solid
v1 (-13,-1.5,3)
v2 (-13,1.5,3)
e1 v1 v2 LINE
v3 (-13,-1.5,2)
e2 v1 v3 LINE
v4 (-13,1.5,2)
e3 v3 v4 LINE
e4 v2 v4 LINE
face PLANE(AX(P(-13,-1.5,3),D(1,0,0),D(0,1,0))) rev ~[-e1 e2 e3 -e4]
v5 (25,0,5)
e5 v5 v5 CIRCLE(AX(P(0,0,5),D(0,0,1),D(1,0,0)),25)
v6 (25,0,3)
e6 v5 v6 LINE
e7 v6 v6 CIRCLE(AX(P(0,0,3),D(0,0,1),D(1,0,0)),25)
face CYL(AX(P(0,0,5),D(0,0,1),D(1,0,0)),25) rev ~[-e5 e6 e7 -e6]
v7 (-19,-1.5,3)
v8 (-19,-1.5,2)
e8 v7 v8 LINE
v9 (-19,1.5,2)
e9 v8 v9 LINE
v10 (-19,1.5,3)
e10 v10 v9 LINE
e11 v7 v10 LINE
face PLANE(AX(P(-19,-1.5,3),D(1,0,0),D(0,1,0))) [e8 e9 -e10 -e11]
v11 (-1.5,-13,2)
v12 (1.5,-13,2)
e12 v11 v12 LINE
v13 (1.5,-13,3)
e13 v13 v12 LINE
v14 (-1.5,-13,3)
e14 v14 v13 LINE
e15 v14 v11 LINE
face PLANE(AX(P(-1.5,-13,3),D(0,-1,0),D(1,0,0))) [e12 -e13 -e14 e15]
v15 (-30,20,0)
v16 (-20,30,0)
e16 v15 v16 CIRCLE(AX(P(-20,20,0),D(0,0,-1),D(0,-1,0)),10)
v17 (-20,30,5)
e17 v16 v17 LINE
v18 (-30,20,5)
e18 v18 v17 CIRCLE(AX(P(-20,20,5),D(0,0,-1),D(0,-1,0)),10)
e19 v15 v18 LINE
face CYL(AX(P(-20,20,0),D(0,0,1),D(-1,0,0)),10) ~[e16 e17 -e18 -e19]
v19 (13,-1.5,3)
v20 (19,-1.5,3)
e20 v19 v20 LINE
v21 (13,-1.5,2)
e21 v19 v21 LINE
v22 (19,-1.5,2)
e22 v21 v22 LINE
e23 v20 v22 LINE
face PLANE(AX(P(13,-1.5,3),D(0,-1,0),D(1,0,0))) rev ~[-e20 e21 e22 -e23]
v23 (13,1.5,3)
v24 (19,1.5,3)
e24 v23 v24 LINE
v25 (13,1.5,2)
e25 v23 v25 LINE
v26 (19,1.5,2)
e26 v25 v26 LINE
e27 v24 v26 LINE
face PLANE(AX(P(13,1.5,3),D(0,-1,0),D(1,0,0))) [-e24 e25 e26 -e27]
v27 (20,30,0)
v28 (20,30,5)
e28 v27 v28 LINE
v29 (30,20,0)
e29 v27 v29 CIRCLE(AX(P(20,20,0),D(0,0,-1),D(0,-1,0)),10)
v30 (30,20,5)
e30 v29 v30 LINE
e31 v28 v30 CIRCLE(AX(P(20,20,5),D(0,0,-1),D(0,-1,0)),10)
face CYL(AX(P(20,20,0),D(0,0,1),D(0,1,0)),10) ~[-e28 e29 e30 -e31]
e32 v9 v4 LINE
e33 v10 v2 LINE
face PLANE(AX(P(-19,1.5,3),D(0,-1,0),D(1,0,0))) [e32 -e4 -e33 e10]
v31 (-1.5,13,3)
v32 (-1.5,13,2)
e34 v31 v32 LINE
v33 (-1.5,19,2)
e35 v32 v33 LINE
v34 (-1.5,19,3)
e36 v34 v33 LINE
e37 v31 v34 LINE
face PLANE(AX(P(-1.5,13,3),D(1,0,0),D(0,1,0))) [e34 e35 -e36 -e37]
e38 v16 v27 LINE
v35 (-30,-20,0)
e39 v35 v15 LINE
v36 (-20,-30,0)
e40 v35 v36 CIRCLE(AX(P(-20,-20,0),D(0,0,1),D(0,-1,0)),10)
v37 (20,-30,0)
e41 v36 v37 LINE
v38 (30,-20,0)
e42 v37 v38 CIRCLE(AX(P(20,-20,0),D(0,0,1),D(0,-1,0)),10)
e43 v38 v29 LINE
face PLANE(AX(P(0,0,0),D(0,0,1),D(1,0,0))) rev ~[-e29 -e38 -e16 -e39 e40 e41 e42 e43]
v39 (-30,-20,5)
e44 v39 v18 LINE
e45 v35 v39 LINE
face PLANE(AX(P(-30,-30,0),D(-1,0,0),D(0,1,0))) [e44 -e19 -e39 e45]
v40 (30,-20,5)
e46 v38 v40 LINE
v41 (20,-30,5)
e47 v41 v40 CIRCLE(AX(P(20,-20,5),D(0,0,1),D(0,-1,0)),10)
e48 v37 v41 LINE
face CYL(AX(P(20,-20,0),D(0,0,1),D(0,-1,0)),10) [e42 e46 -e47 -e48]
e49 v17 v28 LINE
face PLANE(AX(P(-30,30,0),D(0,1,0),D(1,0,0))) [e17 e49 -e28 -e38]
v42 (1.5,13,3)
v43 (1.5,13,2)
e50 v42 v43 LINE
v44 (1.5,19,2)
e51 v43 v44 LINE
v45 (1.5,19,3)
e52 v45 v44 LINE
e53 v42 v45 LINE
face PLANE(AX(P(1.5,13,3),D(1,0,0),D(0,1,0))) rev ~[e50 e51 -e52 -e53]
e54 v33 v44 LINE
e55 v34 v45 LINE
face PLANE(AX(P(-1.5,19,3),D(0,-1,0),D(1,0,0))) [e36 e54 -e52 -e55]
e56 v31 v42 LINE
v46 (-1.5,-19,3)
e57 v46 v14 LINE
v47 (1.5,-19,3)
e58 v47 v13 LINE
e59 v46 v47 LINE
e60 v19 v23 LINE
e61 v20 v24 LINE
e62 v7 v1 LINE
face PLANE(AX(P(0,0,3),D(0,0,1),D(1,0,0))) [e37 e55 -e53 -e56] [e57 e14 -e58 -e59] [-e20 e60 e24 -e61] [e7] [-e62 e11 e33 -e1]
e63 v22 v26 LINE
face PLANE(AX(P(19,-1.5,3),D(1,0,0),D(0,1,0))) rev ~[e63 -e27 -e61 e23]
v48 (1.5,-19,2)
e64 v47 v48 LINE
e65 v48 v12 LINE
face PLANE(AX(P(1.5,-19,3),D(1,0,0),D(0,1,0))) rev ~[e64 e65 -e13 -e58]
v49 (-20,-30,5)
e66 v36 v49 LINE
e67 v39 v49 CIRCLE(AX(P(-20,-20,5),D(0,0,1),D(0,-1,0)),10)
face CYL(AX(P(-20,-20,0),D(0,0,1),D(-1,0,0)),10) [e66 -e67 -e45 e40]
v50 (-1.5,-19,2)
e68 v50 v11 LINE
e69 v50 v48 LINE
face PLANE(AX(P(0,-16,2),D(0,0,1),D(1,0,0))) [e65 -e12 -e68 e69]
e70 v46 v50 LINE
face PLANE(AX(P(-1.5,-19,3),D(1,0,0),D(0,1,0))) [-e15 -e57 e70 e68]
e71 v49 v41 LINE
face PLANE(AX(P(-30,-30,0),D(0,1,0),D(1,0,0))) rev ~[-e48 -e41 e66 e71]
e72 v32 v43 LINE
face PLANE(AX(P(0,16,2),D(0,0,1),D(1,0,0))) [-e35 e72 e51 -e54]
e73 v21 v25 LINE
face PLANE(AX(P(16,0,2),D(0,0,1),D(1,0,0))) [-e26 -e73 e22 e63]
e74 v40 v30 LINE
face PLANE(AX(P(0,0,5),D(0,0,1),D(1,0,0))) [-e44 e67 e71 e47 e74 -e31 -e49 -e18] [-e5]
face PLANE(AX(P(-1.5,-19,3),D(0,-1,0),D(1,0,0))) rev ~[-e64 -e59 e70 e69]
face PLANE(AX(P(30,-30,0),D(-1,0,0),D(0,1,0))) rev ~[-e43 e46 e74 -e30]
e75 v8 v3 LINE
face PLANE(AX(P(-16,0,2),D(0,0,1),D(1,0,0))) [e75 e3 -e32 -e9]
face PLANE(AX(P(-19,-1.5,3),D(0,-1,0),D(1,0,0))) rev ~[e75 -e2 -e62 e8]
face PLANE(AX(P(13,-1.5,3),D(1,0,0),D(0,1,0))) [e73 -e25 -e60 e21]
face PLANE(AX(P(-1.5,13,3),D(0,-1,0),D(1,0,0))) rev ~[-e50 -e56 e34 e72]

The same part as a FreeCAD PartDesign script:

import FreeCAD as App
import Part
import Sketcher


def edges_at(feature, points):
    """Names of the edges that pass closest to the given points."""
    edges = feature.Shape.Edges
    near = lambda p: min(range(len(edges)), key=lambda i: edges[i].distToShape(Part.Vertex(*p))[0])
    return sorted({f"Edge{near(p) + 1}" for p in points})


def add_polygon(sketch, points):
    """Adds a closed chain of lines whose ends are joined by coincident constraints."""
    first, n = sketch.GeometryCount, len(points)
    for a, b in zip(points, points[1:] + points[:1]):
        sketch.addGeometry(Part.LineSegment(App.Vector(*a, 0), App.Vector(*b, 0)), False)
    for i in range(n):
        sketch.addConstraint(Sketcher.Constraint("Coincident", first + i, 2, first + (i + 1) % n, 1))

doc = App.newDocument("Part")
body = doc.addObject("PartDesign::Body", "Body")

# Sketch on XY plane
sketch1 = body.newObject("Sketcher::SketchObject", "Sketch")
sketch1.AttachmentSupport = (doc.getObject("XY_Plane"), [""])
sketch1.MapMode = "FlatFace"
add_polygon(sketch1, [(-30, 30), (-30, -30), (30, -30), (30, 30)])  # lines 0-3
sketch1.addConstraint([
    Sketcher.Constraint("Vertical", 0),
    Sketcher.Constraint("Horizontal", 1),
    Sketcher.Constraint("Vertical", 2),
    Sketcher.Constraint("Horizontal", 3),
    Sketcher.Constraint("Symmetric", 0, 2, 2, 2, -1, 1),
    Sketcher.Constraint("Equal", 3, 0),
    Sketcher.Constraint("DistanceX", 1, 1, 1, 2, 60.0),
])
pad1 = body.newObject("PartDesign::Pad", "Pad")
pad1.Profile = sketch1
pad1.Length = 5

# Sketch on XY plane
sketch2 = body.newObject("Sketcher::SketchObject", "Sketch001")
sketch2.AttachmentSupport = (doc.getObject("XY_Plane"), [""])
sketch2.MapMode = "FlatFace"
sketch2.AttachmentOffset = App.Placement(App.Vector(0, 0, 5), App.Rotation())
sketch2.addGeometry(Part.Circle(App.Vector(0, 0, 0), App.Vector(0, 0, 1), 25), False)
sketch2.addConstraint([
    Sketcher.Constraint("Coincident", 0, 3, -1, 1),
    Sketcher.Constraint("Diameter", 0, 50.0),
])
pocket1 = body.newObject("PartDesign::Pocket", "Pocket")
pocket1.Profile = sketch2
pocket1.Length = 2
doc.recompute()

fillet = body.newObject("PartDesign::Fillet", "Fillet")
fillet.Base = (pocket1, edges_at(pocket1, [
    (-30, -30, 2.5),
    (30, -30, 2.5),
    (30, 30, 2.5),
    (-30, 30, 2.5),
]))
fillet.Radius = 10

# Sketch on XY plane
sketch3 = body.newObject("Sketcher::SketchObject", "Sketch002")
sketch3.AttachmentSupport = (doc.getObject("XY_Plane"), [""])
sketch3.MapMode = "FlatFace"
sketch3.AttachmentOffset = App.Placement(App.Vector(0, 0, 3), App.Rotation())
add_polygon(sketch3, [(-1.5, 19), (-1.5, 13), (1.5, 13), (1.5, 19)])  # lines 0-3
add_polygon(sketch3, [(-19, 1.5), (-19, -1.5), (-13, -1.5), (-13, 1.5)])  # lines 4-7
add_polygon(sketch3, [(-1.5, -13), (-1.5, -19), (1.5, -19), (1.5, -13)])  # lines 8-11
add_polygon(sketch3, [(13, 1.5), (13, -1.5), (19, -1.5), (19, 1.5)])  # lines 12-15
sketch3.addConstraint([
    Sketcher.Constraint("Vertical", 0),
    Sketcher.Constraint("Horizontal", 1),
    Sketcher.Constraint("Vertical", 2),
    Sketcher.Constraint("Horizontal", 3),
    Sketcher.Constraint("Vertical", 4),
    Sketcher.Constraint("Horizontal", 5),
    Sketcher.Constraint("Vertical", 6),
    Sketcher.Constraint("Horizontal", 7),
    Sketcher.Constraint("Vertical", 8),
    Sketcher.Constraint("Horizontal", 9),
    Sketcher.Constraint("Vertical", 10),
    Sketcher.Constraint("Horizontal", 11),
    Sketcher.Constraint("Vertical", 12),
    Sketcher.Constraint("Horizontal", 13),
    Sketcher.Constraint("Vertical", 14),
    Sketcher.Constraint("Horizontal", 15),
    Sketcher.Constraint("Symmetric", 2, 2, 8, 2, -1, 1),
    Sketcher.Constraint("Symmetric", 0, 2, 10, 2, -1, 1),
    Sketcher.Constraint("Symmetric", 6, 2, 12, 2, -1, 1),
    Sketcher.Constraint("Symmetric", 4, 2, 14, 2, -1, 1),
    Sketcher.Constraint("Horizontal", 5, 2, 12, 2),
    Sketcher.Constraint("Vertical", 3, 2, 8, 2),
    Sketcher.Constraint("Equal", 15, 0),
    Sketcher.Constraint("Equal", 11, 4),
    Sketcher.Constraint("DistanceX", 1, 1, 1, 2, 3.0),
    Sketcher.Constraint("DistanceX", 5, 1, 5, 2, 6.0),
    Sketcher.Constraint("DistanceY", -1, 1, 0, 2, 13.0),
    Sketcher.Constraint("DistanceX", 4, 2, -1, 1, 19.0),
])
pocket2 = body.newObject("PartDesign::Pocket", "Pocket001")
pocket2.Profile = sketch3
pocket2.Length = 1

doc.recompute()
